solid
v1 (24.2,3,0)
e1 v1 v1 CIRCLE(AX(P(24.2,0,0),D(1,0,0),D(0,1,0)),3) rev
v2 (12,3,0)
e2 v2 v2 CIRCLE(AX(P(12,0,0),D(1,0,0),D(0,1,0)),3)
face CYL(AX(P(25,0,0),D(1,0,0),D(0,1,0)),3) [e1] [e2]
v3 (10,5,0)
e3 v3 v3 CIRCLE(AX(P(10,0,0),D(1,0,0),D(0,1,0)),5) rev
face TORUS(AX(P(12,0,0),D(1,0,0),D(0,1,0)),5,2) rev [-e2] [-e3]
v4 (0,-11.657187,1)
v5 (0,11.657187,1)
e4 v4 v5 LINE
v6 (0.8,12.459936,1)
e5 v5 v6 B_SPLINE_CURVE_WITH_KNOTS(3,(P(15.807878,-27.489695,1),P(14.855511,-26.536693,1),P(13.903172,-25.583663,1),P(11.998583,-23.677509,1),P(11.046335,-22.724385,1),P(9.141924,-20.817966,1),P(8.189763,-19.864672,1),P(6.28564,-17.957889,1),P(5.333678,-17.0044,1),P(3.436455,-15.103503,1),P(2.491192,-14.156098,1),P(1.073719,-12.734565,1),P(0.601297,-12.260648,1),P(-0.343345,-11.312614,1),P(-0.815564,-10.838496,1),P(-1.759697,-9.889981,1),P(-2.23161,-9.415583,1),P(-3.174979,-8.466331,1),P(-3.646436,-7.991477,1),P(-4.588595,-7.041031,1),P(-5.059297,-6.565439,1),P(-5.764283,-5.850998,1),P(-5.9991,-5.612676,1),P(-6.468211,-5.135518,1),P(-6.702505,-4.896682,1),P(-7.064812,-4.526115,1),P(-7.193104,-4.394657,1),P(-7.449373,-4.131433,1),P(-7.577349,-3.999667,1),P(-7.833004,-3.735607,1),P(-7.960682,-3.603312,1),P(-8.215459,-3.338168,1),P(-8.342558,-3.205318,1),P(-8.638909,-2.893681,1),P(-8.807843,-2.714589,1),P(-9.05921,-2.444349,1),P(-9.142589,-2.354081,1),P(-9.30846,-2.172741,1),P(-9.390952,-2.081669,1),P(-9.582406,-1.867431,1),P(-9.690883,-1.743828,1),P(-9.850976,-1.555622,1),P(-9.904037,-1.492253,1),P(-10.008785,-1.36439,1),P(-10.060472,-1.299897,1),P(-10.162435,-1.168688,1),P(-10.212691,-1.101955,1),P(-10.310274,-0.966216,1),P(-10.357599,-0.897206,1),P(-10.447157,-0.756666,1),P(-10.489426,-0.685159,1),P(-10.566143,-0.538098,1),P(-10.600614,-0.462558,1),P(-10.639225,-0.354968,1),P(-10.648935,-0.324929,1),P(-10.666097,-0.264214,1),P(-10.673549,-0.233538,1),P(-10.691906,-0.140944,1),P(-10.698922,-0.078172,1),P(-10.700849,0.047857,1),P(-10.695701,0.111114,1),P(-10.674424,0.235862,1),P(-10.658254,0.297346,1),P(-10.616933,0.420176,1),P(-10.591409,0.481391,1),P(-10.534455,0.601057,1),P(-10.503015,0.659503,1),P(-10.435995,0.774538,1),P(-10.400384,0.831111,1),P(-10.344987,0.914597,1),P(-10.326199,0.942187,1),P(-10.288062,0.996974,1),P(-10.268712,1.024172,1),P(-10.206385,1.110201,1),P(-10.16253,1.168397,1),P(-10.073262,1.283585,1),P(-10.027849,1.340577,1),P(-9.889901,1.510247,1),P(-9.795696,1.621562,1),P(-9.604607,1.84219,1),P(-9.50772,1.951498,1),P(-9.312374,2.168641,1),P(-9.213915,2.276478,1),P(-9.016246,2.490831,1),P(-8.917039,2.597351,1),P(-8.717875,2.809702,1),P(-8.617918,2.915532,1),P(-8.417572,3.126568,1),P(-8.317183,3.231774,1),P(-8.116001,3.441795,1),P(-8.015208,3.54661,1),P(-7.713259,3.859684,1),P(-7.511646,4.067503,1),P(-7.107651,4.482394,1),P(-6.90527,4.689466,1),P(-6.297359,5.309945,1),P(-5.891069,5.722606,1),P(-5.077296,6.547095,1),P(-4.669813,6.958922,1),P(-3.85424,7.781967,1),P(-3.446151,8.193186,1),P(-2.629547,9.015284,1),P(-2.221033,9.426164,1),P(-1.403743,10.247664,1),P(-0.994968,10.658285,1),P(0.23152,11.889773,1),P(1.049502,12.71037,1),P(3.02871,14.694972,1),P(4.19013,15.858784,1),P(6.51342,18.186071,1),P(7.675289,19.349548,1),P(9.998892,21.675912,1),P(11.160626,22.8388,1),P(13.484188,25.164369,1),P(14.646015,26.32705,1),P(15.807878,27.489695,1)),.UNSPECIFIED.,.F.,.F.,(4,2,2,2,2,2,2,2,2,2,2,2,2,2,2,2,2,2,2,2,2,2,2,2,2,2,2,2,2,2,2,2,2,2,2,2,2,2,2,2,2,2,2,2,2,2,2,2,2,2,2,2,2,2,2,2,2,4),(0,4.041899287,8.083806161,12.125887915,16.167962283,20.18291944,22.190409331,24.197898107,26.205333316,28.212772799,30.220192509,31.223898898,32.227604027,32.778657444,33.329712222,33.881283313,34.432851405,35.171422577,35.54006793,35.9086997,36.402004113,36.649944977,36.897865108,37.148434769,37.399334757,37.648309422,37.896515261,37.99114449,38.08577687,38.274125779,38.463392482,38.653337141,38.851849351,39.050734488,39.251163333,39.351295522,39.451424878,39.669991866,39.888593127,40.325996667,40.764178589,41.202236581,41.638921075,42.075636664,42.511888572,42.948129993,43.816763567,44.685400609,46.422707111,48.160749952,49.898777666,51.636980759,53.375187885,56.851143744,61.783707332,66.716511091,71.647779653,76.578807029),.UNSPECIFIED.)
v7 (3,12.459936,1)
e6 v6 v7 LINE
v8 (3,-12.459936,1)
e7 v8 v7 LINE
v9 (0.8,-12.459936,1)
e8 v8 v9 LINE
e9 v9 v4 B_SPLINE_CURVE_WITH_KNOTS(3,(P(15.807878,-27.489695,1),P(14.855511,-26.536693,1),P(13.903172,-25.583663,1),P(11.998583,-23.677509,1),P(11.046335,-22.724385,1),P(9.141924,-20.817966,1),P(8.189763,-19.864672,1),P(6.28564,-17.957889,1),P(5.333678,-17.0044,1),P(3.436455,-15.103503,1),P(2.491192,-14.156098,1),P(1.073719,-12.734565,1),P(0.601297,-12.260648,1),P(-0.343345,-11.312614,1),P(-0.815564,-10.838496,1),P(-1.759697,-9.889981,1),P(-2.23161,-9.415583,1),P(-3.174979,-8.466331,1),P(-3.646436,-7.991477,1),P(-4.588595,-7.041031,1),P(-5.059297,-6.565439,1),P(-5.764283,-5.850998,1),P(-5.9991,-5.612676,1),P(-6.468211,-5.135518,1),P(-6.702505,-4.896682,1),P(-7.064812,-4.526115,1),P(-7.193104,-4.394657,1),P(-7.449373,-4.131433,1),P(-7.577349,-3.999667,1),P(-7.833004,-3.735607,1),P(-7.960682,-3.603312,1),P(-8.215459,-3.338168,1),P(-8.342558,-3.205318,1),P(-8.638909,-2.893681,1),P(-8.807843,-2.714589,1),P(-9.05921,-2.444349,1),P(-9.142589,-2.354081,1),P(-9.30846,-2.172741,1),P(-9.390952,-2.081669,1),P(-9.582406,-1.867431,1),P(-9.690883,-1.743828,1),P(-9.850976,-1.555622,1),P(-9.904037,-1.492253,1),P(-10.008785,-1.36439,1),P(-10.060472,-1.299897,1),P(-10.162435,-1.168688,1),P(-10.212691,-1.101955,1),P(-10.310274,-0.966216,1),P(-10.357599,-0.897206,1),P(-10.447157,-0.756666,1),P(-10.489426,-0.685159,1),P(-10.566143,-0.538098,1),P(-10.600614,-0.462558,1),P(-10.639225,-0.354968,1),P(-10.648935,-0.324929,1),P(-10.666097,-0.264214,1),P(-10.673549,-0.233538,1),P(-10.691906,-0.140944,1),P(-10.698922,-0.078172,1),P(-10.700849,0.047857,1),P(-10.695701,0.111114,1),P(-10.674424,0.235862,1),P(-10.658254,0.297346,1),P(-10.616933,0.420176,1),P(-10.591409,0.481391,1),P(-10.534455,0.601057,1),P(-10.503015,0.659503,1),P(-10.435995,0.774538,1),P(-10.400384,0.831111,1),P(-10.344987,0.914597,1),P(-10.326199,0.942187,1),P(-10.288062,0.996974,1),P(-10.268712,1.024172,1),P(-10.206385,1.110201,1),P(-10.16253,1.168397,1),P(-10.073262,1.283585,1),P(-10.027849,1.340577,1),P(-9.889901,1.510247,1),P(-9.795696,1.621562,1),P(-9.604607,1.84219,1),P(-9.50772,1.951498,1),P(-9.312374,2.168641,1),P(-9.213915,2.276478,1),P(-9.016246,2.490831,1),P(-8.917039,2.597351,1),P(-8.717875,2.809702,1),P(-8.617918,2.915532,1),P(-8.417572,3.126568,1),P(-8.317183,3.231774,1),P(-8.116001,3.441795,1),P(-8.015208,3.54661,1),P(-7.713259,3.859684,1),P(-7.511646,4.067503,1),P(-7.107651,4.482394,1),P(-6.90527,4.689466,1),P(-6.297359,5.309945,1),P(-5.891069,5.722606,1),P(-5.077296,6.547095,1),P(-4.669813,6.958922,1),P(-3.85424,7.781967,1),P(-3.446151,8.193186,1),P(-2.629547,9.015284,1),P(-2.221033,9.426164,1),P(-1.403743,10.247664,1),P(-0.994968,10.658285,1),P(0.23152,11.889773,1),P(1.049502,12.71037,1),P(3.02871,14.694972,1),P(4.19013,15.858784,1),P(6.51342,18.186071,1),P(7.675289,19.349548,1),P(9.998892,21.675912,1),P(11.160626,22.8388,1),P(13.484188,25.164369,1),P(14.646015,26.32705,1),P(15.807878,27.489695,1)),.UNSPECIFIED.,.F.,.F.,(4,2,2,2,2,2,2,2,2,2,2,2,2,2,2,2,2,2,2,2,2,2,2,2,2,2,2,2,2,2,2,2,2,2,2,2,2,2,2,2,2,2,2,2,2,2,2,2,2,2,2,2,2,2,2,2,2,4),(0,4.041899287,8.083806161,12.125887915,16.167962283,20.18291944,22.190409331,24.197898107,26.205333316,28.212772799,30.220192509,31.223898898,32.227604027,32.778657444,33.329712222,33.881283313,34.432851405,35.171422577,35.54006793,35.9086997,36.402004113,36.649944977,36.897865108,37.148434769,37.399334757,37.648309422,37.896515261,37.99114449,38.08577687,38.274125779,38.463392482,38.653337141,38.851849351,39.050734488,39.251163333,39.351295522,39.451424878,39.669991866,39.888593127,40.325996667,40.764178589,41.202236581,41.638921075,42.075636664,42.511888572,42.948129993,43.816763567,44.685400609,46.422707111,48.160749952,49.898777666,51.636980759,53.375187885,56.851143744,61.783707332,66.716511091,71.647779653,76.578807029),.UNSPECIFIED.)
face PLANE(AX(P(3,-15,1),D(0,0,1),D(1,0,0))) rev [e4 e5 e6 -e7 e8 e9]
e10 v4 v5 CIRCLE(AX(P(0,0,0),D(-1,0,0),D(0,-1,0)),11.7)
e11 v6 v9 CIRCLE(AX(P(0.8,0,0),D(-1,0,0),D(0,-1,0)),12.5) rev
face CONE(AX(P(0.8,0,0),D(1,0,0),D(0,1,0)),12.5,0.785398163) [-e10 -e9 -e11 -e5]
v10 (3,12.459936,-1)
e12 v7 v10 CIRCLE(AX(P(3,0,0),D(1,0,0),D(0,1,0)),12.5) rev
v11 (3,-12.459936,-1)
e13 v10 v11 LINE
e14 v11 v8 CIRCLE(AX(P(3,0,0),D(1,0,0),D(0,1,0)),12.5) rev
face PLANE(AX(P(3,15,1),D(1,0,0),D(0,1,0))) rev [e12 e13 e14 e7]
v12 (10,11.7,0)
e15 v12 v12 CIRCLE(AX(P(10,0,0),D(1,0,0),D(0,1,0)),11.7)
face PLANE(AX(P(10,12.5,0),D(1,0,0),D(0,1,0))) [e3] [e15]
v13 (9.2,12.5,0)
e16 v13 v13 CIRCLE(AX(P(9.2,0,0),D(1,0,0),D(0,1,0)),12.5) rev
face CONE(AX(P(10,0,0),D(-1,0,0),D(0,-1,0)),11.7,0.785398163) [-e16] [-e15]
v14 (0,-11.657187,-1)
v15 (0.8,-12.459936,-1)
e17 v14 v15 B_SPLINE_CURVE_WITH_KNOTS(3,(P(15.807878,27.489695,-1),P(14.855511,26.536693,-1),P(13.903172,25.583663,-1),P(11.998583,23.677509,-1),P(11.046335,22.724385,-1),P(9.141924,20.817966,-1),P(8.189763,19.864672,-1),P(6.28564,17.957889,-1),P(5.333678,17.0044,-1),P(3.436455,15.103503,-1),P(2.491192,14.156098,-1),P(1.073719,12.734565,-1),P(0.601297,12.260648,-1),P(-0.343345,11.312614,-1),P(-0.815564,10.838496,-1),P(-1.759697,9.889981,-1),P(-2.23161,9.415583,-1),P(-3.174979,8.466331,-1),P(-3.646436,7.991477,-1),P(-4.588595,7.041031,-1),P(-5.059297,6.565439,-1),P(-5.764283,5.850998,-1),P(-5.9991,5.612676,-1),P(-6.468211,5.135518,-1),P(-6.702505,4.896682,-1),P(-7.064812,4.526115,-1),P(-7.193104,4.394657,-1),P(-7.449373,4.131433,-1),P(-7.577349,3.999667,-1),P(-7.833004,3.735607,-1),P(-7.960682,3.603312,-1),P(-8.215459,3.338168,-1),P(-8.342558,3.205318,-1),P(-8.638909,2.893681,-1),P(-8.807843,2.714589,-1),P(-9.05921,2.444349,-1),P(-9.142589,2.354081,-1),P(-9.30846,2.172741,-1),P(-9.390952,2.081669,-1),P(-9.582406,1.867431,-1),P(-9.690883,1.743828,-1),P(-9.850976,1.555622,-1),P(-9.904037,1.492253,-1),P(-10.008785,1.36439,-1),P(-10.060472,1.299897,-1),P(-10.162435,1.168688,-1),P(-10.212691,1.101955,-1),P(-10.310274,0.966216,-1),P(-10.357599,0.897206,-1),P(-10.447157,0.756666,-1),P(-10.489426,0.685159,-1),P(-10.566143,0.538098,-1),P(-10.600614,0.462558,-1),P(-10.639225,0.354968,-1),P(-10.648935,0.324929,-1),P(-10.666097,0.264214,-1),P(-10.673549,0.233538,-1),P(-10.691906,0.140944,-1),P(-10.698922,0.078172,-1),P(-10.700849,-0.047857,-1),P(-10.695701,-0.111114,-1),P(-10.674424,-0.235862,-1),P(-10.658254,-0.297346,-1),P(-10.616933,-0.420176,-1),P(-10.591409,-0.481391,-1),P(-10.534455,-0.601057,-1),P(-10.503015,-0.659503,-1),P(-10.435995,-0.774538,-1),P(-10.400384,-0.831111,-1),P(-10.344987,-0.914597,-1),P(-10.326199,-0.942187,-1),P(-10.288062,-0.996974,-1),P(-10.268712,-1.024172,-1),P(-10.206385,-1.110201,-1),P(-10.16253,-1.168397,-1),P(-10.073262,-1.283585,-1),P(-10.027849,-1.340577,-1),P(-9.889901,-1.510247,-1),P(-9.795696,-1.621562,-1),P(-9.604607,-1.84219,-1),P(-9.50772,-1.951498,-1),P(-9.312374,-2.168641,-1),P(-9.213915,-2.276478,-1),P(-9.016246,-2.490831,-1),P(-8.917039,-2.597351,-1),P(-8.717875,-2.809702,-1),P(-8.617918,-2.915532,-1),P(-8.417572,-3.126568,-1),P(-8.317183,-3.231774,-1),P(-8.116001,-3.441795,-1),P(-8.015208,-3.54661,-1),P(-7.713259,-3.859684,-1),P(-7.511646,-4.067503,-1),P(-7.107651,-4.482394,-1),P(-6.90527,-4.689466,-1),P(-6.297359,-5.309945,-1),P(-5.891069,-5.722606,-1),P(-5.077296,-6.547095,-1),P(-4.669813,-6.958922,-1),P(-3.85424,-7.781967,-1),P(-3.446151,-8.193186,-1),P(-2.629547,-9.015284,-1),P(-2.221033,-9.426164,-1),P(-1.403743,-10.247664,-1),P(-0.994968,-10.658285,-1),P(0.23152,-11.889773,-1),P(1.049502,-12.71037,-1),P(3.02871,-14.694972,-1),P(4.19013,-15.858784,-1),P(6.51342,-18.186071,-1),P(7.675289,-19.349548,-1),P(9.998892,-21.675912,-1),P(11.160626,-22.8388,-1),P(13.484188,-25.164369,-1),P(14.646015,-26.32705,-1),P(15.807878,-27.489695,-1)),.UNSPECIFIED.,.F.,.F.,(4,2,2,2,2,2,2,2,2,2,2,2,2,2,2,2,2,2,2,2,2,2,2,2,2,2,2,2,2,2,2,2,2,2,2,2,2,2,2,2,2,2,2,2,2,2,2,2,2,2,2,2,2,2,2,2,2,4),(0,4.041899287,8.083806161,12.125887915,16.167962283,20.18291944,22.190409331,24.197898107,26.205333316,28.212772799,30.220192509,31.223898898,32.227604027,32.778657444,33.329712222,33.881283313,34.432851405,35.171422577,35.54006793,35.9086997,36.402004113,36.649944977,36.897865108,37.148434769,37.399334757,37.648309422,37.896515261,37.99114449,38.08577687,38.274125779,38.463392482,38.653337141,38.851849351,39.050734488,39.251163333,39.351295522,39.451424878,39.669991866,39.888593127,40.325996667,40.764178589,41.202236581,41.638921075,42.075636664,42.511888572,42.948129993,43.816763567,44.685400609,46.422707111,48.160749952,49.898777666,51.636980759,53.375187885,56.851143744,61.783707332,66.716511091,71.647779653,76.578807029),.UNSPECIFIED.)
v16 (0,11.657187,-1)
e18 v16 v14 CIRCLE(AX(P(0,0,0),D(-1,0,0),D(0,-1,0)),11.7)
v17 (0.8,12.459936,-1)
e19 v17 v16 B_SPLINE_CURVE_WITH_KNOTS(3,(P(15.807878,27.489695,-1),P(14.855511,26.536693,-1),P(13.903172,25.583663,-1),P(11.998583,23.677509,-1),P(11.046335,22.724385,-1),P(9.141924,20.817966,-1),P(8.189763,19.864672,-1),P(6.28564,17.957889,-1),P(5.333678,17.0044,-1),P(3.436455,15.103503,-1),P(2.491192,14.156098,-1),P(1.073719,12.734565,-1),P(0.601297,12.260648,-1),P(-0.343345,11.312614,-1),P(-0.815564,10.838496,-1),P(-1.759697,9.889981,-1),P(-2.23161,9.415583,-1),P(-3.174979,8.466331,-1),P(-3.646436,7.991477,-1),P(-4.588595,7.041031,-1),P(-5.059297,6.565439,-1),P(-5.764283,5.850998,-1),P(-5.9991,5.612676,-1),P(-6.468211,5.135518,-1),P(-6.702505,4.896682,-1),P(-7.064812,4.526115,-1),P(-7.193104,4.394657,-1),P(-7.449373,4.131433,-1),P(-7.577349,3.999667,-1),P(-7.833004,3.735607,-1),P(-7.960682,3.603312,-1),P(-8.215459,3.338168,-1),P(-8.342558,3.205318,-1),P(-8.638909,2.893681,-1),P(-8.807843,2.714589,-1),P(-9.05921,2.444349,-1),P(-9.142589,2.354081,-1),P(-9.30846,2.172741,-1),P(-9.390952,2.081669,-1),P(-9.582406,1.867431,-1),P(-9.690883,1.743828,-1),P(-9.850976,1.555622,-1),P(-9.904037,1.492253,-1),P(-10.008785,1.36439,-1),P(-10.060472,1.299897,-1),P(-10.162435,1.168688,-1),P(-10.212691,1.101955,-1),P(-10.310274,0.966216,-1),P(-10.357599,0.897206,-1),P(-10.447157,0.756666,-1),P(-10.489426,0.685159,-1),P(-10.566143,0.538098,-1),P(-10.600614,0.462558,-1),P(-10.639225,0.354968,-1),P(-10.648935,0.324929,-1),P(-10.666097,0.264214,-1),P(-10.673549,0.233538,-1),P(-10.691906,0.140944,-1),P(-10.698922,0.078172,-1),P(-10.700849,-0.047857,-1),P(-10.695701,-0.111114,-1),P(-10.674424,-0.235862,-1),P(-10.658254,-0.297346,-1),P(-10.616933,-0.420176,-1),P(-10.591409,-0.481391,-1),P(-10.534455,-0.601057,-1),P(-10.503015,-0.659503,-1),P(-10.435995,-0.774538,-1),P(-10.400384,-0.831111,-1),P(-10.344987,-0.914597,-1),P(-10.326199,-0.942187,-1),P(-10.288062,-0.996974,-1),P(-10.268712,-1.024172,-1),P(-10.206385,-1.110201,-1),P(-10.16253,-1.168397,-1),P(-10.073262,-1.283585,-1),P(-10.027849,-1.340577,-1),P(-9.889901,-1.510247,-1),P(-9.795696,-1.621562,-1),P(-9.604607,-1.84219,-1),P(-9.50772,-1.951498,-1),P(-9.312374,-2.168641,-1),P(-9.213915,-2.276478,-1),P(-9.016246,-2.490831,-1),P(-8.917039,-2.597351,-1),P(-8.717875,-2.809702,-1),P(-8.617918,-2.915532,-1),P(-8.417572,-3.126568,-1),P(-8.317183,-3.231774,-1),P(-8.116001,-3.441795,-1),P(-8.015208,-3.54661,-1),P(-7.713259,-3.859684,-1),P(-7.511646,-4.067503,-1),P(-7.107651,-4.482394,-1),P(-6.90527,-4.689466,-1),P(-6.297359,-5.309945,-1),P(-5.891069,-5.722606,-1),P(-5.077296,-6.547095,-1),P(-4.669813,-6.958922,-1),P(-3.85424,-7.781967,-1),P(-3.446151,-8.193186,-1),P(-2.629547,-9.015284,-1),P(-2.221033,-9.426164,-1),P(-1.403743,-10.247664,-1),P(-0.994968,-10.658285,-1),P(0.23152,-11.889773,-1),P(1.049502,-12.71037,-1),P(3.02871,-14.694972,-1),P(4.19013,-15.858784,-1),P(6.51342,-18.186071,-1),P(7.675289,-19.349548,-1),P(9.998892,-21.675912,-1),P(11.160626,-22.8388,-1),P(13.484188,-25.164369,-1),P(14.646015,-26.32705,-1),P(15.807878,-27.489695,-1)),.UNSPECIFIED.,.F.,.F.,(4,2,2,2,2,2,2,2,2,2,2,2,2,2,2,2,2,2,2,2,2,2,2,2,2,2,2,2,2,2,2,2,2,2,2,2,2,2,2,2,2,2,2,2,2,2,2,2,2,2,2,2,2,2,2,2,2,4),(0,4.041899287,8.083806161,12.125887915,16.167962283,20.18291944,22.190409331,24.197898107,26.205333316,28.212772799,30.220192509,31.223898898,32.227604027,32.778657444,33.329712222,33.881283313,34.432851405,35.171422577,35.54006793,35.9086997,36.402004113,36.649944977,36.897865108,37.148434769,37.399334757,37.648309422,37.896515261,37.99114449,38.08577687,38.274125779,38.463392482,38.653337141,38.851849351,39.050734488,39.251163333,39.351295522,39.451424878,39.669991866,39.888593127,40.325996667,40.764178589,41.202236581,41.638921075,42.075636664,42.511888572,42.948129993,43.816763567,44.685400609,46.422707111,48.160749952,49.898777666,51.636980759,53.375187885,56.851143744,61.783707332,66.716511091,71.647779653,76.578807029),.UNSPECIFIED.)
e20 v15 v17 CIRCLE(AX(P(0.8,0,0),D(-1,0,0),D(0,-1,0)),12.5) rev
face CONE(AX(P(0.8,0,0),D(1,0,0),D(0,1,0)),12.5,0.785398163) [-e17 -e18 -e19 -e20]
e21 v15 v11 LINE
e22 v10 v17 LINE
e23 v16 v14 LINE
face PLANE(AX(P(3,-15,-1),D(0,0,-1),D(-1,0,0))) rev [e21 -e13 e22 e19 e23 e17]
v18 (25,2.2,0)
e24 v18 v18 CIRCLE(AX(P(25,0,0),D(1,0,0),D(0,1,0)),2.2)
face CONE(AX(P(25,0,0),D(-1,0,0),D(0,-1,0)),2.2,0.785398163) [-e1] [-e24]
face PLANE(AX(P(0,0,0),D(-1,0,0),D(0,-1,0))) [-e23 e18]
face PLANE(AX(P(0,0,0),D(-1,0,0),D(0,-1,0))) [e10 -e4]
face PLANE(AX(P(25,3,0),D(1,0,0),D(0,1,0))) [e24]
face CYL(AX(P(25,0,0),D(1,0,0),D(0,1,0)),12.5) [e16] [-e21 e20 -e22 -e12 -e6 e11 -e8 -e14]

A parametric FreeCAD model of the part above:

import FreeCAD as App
import Part
import Sketcher

V = App.Vector


def edges_at(feature, points):
    """Names of the edges that pass closest to the given points."""
    edges = feature.Shape.Edges
    near = lambda p: min(range(len(edges)), key=lambda i: edges[i].distToShape(Part.Vertex(*p))[0])
    return sorted({f"Edge{near(p) + 1}" for p in points})

doc = App.newDocument("Part")
body = doc.addObject("PartDesign::Body", "Body")

# Sketch on XY plane
sketch1 = doc.addObject("Sketcher::SketchObject", "Sketch")
body.addObject(sketch1)
sketch1.AttachmentSupport = (doc.XY_Plane, [""])
sketch1.MapMode = "FlatFace"
sketch1.addGeometry(Part.LineSegment(V(0, 12.5, 0), V(0, 0, 0)), False)
sketch1.addGeometry(Part.LineSegment(V(0, 0, 0), V(25, 0, 0)), False)
sketch1.addGeometry(Part.LineSegment(V(25, 0, 0), V(25, 3, 0)), False)
sketch1.addGeometry(Part.LineSegment(V(25, 3, 0), V(10, 3, 0)), False)
sketch1.addGeometry(Part.LineSegment(V(10, 3, 0), V(10, 12.5, 0)), False)
sketch1.addGeometry(Part.LineSegment(V(10, 12.5, 0), V(0, 12.5, 0)), False)
sketch1.addConstraint(Sketcher.Constraint("Coincident", 0, 2, 1, 1))
sketch1.addConstraint(Sketcher.Constraint("Coincident", 1, 2, 2, 1))
sketch1.addConstraint(Sketcher.Constraint("Coincident", 2, 2, 3, 1))
sketch1.addConstraint(Sketcher.Constraint("Coincident", 3, 2, 4, 1))
sketch1.addConstraint(Sketcher.Constraint("Coincident", 4, 2, 5, 1))
sketch1.addConstraint(Sketcher.Constraint("Coincident", 5, 2, 0, 1))
sketch1.addConstraint(Sketcher.Constraint("Vertical", 0))
sketch1.addConstraint(Sketcher.Constraint("Horizontal", 1))
sketch1.addConstraint(Sketcher.Constraint("Vertical", 2))
sketch1.addConstraint(Sketcher.Constraint("Horizontal", 3))
sketch1.addConstraint(Sketcher.Constraint("Vertical", 4))
sketch1.addConstraint(Sketcher.Constraint("Horizontal", 5))
sketch1.addConstraint(Sketcher.Constraint("Coincident", 0, 2, -1, 1))
sketch1.addConstraint(Sketcher.Constraint("DistanceX", 1, 1, 1, 2, 25.0))
sketch1.addConstraint(Sketcher.Constraint("DistanceX", 3, 2, 3, 1, 15.0))
sketch1.addConstraint(Sketcher.Constraint("DistanceY", 2, 1, 2, 2, 3.0))
sketch1.addConstraint(Sketcher.Constraint("DistanceY", 0, 2, 0, 1, 12.5))
revolution = doc.addObject("PartDesign::Revolution", "Revolution")
body.addObject(revolution)
revolution.Profile = sketch1
revolution.ReferenceAxis = (sketch1, ["H_Axis"])
revolution.Angle = 360
doc.recompute()

chamfer = doc.addObject("PartDesign::Chamfer", "Chamfer")
body.addObject(chamfer)
chamfer.Base = (revolution, edges_at(revolution, [(25, -3, 0), (10, -12.5, 0), (0, -12.5, 0)]))
chamfer.Size = 0.8
doc.recompute()

fillet = doc.addObject("PartDesign::Fillet", "Fillet")
body.addObject(fillet)
fillet.Base = (chamfer, edges_at(chamfer, [(10, -3, 0)]))
fillet.Radius = 2

# Sketch on YZ plane
sketch2 = doc.addObject("Sketcher::SketchObject", "Sketch001")
body.addObject(sketch2)
sketch2.AttachmentSupport = (doc.YZ_Plane, [""])
sketch2.MapMode = "FlatFace"
sketch2.addGeometry(Part.LineSegment(V(15, -1, 0), V(-15, -1, 0)), False)
sketch2.addGeometry(Part.LineSegment(V(-15, -1, 0), V(-15, 1, 0)), False)
sketch2.addGeometry(Part.LineSegment(V(-15, 1, 0), V(15, 1, 0)), False)
sketch2.addGeometry(Part.LineSegment(V(15, 1, 0), V(15, -1, 0)), False)
sketch2.addConstraint(Sketcher.Constraint("Coincident", 0, 2, 1, 1))
sketch2.addConstraint(Sketcher.Constraint("Coincident", 1, 2, 2, 1))
sketch2.addConstraint(Sketcher.Constraint("Coincident", 2, 2, 3, 1))
sketch2.addConstraint(Sketcher.Constraint("Coincident", 3, 2, 0, 1))
sketch2.addConstraint(Sketcher.Constraint("Horizontal", 0))
sketch2.addConstraint(Sketcher.Constraint("Vertical", 1))
sketch2.addConstraint(Sketcher.Constraint("Horizontal", 2))
sketch2.addConstraint(Sketcher.Constraint("Vertical", 3))
sketch2.addConstraint(Sketcher.Constraint("Symmetric", 0, 2, 2, 2, -1, 1))
sketch2.addConstraint(Sketcher.Constraint("DistanceX", 0, 2, 0, 1, 30.0))
sketch2.addConstraint(Sketcher.Constraint("DistanceY", 1, 1, 1, 2, 2.0))
pocket1 = doc.addObject("PartDesign::Pocket", "Pocket")
body.addObject(pocket1)
pocket1.Profile = sketch2
pocket1.Length = 3
pocket1.Reversed = True

doc.recompute()
